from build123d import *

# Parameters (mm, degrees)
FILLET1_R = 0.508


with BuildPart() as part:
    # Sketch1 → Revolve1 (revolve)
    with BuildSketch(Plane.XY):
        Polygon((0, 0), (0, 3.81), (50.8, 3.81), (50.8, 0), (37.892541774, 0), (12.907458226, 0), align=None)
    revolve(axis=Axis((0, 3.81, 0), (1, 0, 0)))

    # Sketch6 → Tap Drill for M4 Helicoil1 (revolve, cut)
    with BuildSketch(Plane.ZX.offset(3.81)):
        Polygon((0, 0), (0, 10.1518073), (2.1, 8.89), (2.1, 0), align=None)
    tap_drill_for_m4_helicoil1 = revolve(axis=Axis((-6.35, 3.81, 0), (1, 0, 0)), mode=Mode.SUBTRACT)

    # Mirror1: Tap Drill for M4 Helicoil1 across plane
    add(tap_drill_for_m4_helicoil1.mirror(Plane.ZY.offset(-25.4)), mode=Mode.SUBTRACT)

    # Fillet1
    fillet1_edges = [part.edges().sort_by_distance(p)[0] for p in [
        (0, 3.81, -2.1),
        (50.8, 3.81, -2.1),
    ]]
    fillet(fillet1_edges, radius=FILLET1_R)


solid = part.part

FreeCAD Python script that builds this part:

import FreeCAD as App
import Part
import Sketcher
from FreeCAD import Vector
Q = App.Units.Quantity


def edges_at(feature, points):
    """Names of the edges that pass closest to the given points."""
    edges = feature.Shape.Edges
    near = lambda p: min(range(len(edges)), key=lambda i: edges[i].distToShape(Part.Vertex(*p))[0])
    return sorted({f"Edge{near(p) + 1}" for p in points})


def add_polygon(sketch, points):
    """Adds a closed chain of lines whose ends are joined by coincident constraints."""
    first, n = sketch.GeometryCount, len(points)
    for a, b in zip(points, points[1:] + points[:1]):
        sketch.addGeometry(Part.LineSegment(App.Vector(*a, 0), App.Vector(*b, 0)), False)
    for i in range(n):
        sketch.addConstraint(Sketcher.Constraint("Coincident", first + i, 2, first + (i + 1) % n, 1))

doc = App.newDocument("Part")
params = doc.addObject("Spreadsheet::Sheet", "Params")
for row, (alias, value) in enumerate([
    ("sketch1_width", "2 in"),
    ("sketch1_height", "0.15 in"),
    ("revolution_angle", "360 deg"),
    ("sketch2_width", "0.35 in"),
    ("groove_angle", "360 deg"),
    ("fillet_radius", "0.02 in"),
], start=1):
    params.set(f"A{row}", alias)
    params.set(f"B{row}", "=" + value)
    params.setAlias(f"B{row}", alias)

body = doc.addObject("PartDesign::Body", "Body")

# Sketch on XY plane
sketch1 = body.newObject("Sketcher::SketchObject", "Sketch")
sketch1.AttachmentSupport = (doc.getObject("XY_Plane"), [""])
sketch1.MapMode = "FlatFace"
add_polygon(sketch1, [(0, 3.8), (0, 0), (50.8, 0), (50.8, 3.8)])  # lines 0-3
sketch1.addGeometry(Part.LineSegment(Vector(0, 3.8, 0), Vector(50.8, 3.8, 0)), True)  # axis
sketch1.addConstraint([
    Sketcher.Constraint("Vertical", 0),
    Sketcher.Constraint("Horizontal", 1),
    Sketcher.Constraint("Vertical", 2),
    Sketcher.Constraint("Horizontal", 3),
    Sketcher.Constraint("Horizontal", 4),
    Sketcher.Constraint("Coincident", 0, 2, -1, 1),
    Sketcher.Constraint("Coincident", 4, 1, 3, 2),
    Sketcher.Constraint("Vertical", 1, 2, 4, 2),
    Sketcher.Constraint("DistanceX", 1, 1, 1, 2, Q("2 in")),
    Sketcher.Constraint("DistanceY", 0, 2, 0, 1, Q("0.15 in")),
])
sketch1.setExpression("Constraints[12]", "Params.sketch1_width")
sketch1.setExpression("Constraints[13]", "Params.sketch1_height")
revolution = body.newObject("PartDesign::Revolution", "Revolution")
revolution.Profile = sketch1
revolution.ReferenceAxis = (sketch1, ["Axis0"])
revolution.setExpression("Angle", "Params.revolution_angle")

# Sketch on XZ plane
sketch2 = body.newObject("Sketcher::SketchObject", "Sketch001")
sketch2.AttachmentSupport = (doc.getObject("XZ_Plane"), [""])
sketch2.MapMode = "FlatFace"
sketch2.AttachmentOffset = App.Placement(Vector(0, 0, -0.15 * 25.4), App.Rotation())
add_polygon(sketch2, [(10.2, 0), (0, 0), (0, 2.1), (8.9, 2.1)])  # lines 0-3
sketch2.addConstraint([
    Sketcher.Constraint("Horizontal", 0),
    Sketcher.Constraint("Vertical", 1),
    Sketcher.Constraint("Horizontal", 2),
    Sketcher.Constraint("Coincident", 0, 2, -1, 1),
    Sketcher.Constraint("Angle", 3, Q("-59 deg")),
    Sketcher.Constraint("DistanceX", 2, 1, 2, 2, Q("0.35 in")),
    Sketcher.Constraint("DistanceY", 1, 1, 1, 2, Q("2.1 mm")),
])
sketch2.setExpression("Constraints[9]", "Params.sketch2_width")
groove = body.newObject("PartDesign::Groove", "Groove")
groove.Profile = sketch2
groove.ReferenceAxis = (sketch2, ["H_Axis"])
groove.setExpression("Angle", "Params.groove_angle")
doc.recompute()

datumplane = body.newObject("PartDesign::Plane", "DatumPlane")
datumplane.AttachmentSupport = (doc.getObject("YZ_Plane"), [""])
datumplane.MapMode = "FlatFace"
datumplane.AttachmentOffset = App.Placement(Vector(0, 0, 1 * 25.4), App.Rotation())
mirrored = body.newObject("PartDesign::Mirrored", "Mirrored")
mirrored.Originals = [groove]
mirrored.MirrorPlane = (datumplane, [""])
body.Tip = mirrored
doc.recompute()

fillet = body.newObject("PartDesign::Fillet", "Fillet")
fillet.Base = (mirrored, edges_at(mirrored, [(0, 3.81, -2.1), (50.8, 3.81, -2.1)]))
fillet.setExpression("Radius", "Params.fillet_radius")

doc.recompute()
